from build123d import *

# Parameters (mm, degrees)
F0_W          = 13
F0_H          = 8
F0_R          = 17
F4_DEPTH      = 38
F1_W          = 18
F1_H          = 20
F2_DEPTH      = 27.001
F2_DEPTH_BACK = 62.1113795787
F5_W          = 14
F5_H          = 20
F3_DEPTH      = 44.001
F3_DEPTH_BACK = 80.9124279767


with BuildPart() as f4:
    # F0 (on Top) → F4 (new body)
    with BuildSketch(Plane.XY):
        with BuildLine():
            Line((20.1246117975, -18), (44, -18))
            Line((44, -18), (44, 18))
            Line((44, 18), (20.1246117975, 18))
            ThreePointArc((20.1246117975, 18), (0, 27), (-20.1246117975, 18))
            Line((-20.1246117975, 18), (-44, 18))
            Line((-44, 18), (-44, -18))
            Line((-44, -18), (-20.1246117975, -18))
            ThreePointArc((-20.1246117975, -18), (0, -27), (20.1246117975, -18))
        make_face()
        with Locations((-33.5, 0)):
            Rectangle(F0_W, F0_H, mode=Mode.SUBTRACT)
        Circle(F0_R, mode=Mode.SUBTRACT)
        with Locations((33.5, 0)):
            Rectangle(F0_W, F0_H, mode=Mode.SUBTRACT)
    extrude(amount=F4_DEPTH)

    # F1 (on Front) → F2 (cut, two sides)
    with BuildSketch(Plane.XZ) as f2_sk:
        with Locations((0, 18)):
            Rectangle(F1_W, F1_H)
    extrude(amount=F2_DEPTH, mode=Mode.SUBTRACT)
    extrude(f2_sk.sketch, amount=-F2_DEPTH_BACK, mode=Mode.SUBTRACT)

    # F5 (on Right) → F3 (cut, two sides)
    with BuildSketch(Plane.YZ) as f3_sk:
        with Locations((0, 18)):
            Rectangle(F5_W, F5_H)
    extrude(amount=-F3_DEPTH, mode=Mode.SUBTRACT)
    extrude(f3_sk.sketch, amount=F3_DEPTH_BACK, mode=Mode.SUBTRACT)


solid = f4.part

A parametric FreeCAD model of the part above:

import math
import FreeCAD as App
import Part
import Sketcher

V = App.Vector
Q = App.Units.Quantity

doc = App.newDocument("Part")
body = doc.addObject("PartDesign::Body", "Body")

# Sketch on XY plane
sketch1 = body.newObject("Sketcher::SketchObject", "Sketch")
sketch1.AttachmentSupport = (doc.getObject("XY_Plane"), [""])
sketch1.MapMode = "FlatFace"
sketch1.addGeometry(Part.LineSegment(V(20, -18, 0), V(44, -18, 0)), False)
sketch1.addGeometry(Part.LineSegment(V(44, -18, 0), V(44, 18, 0)), False)
sketch1.addGeometry(Part.LineSegment(V(44, 18, 0), V(20, 18, 0)), False)
sketch1.addGeometry(Part.ArcOfCircle(Part.Circle(V(0, 0, 0), V(0, 0, 1), 27), math.radians(42), math.radians(138)), False)
sketch1.addGeometry(Part.LineSegment(V(-20, 18, 0), V(-44, 18, 0)), False)
sketch1.addGeometry(Part.LineSegment(V(-44, 18, 0), V(-44, -18, 0)), False)
sketch1.addGeometry(Part.LineSegment(V(-44, -18, 0), V(-20, -18, 0)), False)
sketch1.addGeometry(Part.ArcOfCircle(Part.Circle(V(0, 0, 0), V(0, 0, 1), 27), math.radians(-138), math.radians(-42)), False)
sketch1.addGeometry(Part.LineSegment(V(-27, -4, 0), V(-40, -4, 0)), False)
sketch1.addGeometry(Part.LineSegment(V(-40, -4, 0), V(-40, 4, 0)), False)
sketch1.addGeometry(Part.LineSegment(V(-40, 4, 0), V(-27, 4, 0)), False)
sketch1.addGeometry(Part.LineSegment(V(-27, 4, 0), V(-27, -4, 0)), False)
sketch1.addGeometry(Part.Circle(V(0, 0, 0), V(0, 0, 1), 17), False)
sketch1.addGeometry(Part.LineSegment(V(40, -4, 0), V(27, -4, 0)), False)
sketch1.addGeometry(Part.LineSegment(V(27, -4, 0), V(27, 4, 0)), False)
sketch1.addGeometry(Part.LineSegment(V(27, 4, 0), V(40, 4, 0)), False)
sketch1.addGeometry(Part.LineSegment(V(40, 4, 0), V(40, -4, 0)), False)
sketch1.addConstraint(Sketcher.Constraint("Coincident", 0, 2, 1, 1))
sketch1.addConstraint(Sketcher.Constraint("Coincident", 1, 2, 2, 1))
sketch1.addConstraint(Sketcher.Constraint("Coincident", 2, 2, 3, 1))
sketch1.addConstraint(Sketcher.Constraint("Coincident", 3, 2, 4, 1))
sketch1.addConstraint(Sketcher.Constraint("Coincident", 4, 2, 5, 1))
sketch1.addConstraint(Sketcher.Constraint("Coincident", 5, 2, 6, 1))
sketch1.addConstraint(Sketcher.Constraint("Coincident", 6, 2, 7, 1))
sketch1.addConstraint(Sketcher.Constraint("Coincident", 7, 2, 0, 1))
sketch1.addConstraint(Sketcher.Constraint("Coincident", 8, 2, 9, 1))
sketch1.addConstraint(Sketcher.Constraint("Coincident", 9, 2, 10, 1))
sketch1.addConstraint(Sketcher.Constraint("Coincident", 10, 2, 11, 1))
sketch1.addConstraint(Sketcher.Constraint("Coincident", 11, 2, 8, 1))
sketch1.addConstraint(Sketcher.Constraint("Coincident", 13, 2, 14, 1))
sketch1.addConstraint(Sketcher.Constraint("Coincident", 14, 2, 15, 1))
sketch1.addConstraint(Sketcher.Constraint("Coincident", 15, 2, 16, 1))
sketch1.addConstraint(Sketcher.Constraint("Coincident", 16, 2, 13, 1))
sketch1.addConstraint(Sketcher.Constraint("Horizontal", 0))
sketch1.addConstraint(Sketcher.Constraint("Vertical", 1))
sketch1.addConstraint(Sketcher.Constraint("Horizontal", 2))
sketch1.addConstraint(Sketcher.Constraint("Horizontal", 4))
sketch1.addConstraint(Sketcher.Constraint("Vertical", 5))
sketch1.addConstraint(Sketcher.Constraint("Horizontal", 6))
sketch1.addConstraint(Sketcher.Constraint("Horizontal", 8))
sketch1.addConstraint(Sketcher.Constraint("Vertical", 9))
sketch1.addConstraint(Sketcher.Constraint("Horizontal", 10))
sketch1.addConstraint(Sketcher.Constraint("Vertical", 11))
sketch1.addConstraint(Sketcher.Constraint("Horizontal", 13))
sketch1.addConstraint(Sketcher.Constraint("Vertical", 14))
sketch1.addConstraint(Sketcher.Constraint("Horizontal", 15))
sketch1.addConstraint(Sketcher.Constraint("Vertical", 16))
sketch1.addConstraint(Sketcher.Constraint("Coincident", 3, 3, -1, 1))
sketch1.addConstraint(Sketcher.Constraint("Coincident", 7, 3, -1, 1))
sketch1.addConstraint(Sketcher.Constraint("Coincident", 12, 3, -1, 1))
sketch1.addConstraint(Sketcher.Constraint("Equal", 3, 7))
sketch1.addConstraint(Sketcher.Constraint("Symmetric", 0, 2, 4, 2, -1, 1))
sketch1.addConstraint(Sketcher.Constraint("Symmetric", 10, 2, 13, 2, -1, 1))
sketch1.addConstraint(Sketcher.Constraint("Symmetric", 8, 2, 15, 2, -1, 1))
sketch1.addConstraint(Sketcher.Constraint("Horizontal", 2, 2, 3, 2))
sketch1.addConstraint(Sketcher.Constraint("Horizontal", 0, 2, 5, 2))
sketch1.addConstraint(Sketcher.Constraint("Horizontal", 11, 2, 13, 2))
sketch1.addConstraint(Sketcher.Constraint("Diameter", 12, Q("34 mm")))
sketch1.addConstraint(Sketcher.Constraint("Radius", 3, Q("27 mm")))
sketch1.addConstraint(Sketcher.Constraint("DistanceX", 8, 2, 8, 1, Q("13 mm")))
sketch1.addConstraint(Sketcher.Constraint("DistanceY", 1, 1, 1, 2, Q("36 mm")))
sketch1.addConstraint(Sketcher.Constraint("DistanceY", 9, 1, 9, 2, Q("8 mm")))
sketch1.addConstraint(Sketcher.Constraint("DistanceX", -1, 1, 0, 2, Q("44 mm")))
sketch1.addConstraint(Sketcher.Constraint("DistanceX", 8, 2, -1, 1, Q("40 mm")))
pad1 = body.newObject("PartDesign::Pad", "Pad")
pad1.Profile = sketch1
pad1.Length = 38

# Sketch on XZ plane
sketch2 = body.newObject("Sketcher::SketchObject", "Sketch001")
sketch2.AttachmentSupport = (doc.getObject("XZ_Plane"), [""])
sketch2.MapMode = "FlatFace"
sketch2.addGeometry(Part.LineSegment(V(-9, 28, 0), V(-9, 8, 0)), False)
sketch2.addGeometry(Part.LineSegment(V(-9, 8, 0), V(9, 8, 0)), False)
sketch2.addGeometry(Part.LineSegment(V(9, 8, 0), V(9, 28, 0)), False)
sketch2.addGeometry(Part.LineSegment(V(9, 28, 0), V(-9, 28, 0)), False)
sketch2.addConstraint(Sketcher.Constraint("Coincident", 0, 2, 1, 1))
sketch2.addConstraint(Sketcher.Constraint("Coincident", 1, 2, 2, 1))
sketch2.addConstraint(Sketcher.Constraint("Coincident", 2, 2, 3, 1))
sketch2.addConstraint(Sketcher.Constraint("Coincident", 3, 2, 0, 1))
sketch2.addConstraint(Sketcher.Constraint("Vertical", 0))
sketch2.addConstraint(Sketcher.Constraint("Horizontal", 1))
sketch2.addConstraint(Sketcher.Constraint("Vertical", 2))
sketch2.addConstraint(Sketcher.Constraint("Horizontal", 3))
sketch2.addConstraint(Sketcher.Constraint("DistanceX", 1, 1, 1, 2, Q("18 mm")))
sketch2.addConstraint(Sketcher.Constraint("DistanceY", 0, 2, 0, 1, Q("20 mm")))
sketch2.addConstraint(Sketcher.Constraint("DistanceX", 0, 2, -1, 1, Q("9 mm")))
sketch2.addConstraint(Sketcher.Constraint("DistanceY", -1, 1, 0, 2, Q("8 mm")))
pocket1 = body.newObject("PartDesign::Pocket", "Pocket")
pocket1.Profile = sketch2
pocket1.Type = "ThroughAll"
pocket1.Midplane = True

# Sketch on YZ plane
sketch3 = body.newObject("Sketcher::SketchObject", "Sketch002")
sketch3.AttachmentSupport = (doc.getObject("YZ_Plane"), [""])
sketch3.MapMode = "FlatFace"
sketch3.addGeometry(Part.LineSegment(V(-7, 28, 0), V(-7, 8, 0)), False)
sketch3.addGeometry(Part.LineSegment(V(-7, 8, 0), V(7, 8, 0)), False)
sketch3.addGeometry(Part.LineSegment(V(7, 8, 0), V(7, 28, 0)), False)
sketch3.addGeometry(Part.LineSegment(V(7, 28, 0), V(-7, 28, 0)), False)
sketch3.addConstraint(Sketcher.Constraint("Coincident", 0, 2, 1, 1))
sketch3.addConstraint(Sketcher.Constraint("Coincident", 1, 2, 2, 1))
sketch3.addConstraint(Sketcher.Constraint("Coincident", 2, 2, 3, 1))
sketch3.addConstraint(Sketcher.Constraint("Coincident", 3, 2, 0, 1))
sketch3.addConstraint(Sketcher.Constraint("Vertical", 0))
sketch3.addConstraint(Sketcher.Constraint("Horizontal", 1))
sketch3.addConstraint(Sketcher.Constraint("Vertical", 2))
sketch3.addConstraint(Sketcher.Constraint("Horizontal", 3))
sketch3.addConstraint(Sketcher.Constraint("DistanceX", 1, 1, 1, 2, Q("14 mm")))
sketch3.addConstraint(Sketcher.Constraint("DistanceY", 0, 2, 0, 1, Q("20 mm")))
sketch3.addConstraint(Sketcher.Constraint("DistanceX", 0, 2, -1, 1, Q("7 mm")))
sketch3.addConstraint(Sketcher.Constraint("DistanceY", -1, 1, 0, 2, Q("8 mm")))
pocket2 = body.newObject("PartDesign::Pocket", "Pocket001")
pocket2.Profile = sketch3
pocket2.Type = "ThroughAll"
pocket2.Midplane = True

doc.recompute()
